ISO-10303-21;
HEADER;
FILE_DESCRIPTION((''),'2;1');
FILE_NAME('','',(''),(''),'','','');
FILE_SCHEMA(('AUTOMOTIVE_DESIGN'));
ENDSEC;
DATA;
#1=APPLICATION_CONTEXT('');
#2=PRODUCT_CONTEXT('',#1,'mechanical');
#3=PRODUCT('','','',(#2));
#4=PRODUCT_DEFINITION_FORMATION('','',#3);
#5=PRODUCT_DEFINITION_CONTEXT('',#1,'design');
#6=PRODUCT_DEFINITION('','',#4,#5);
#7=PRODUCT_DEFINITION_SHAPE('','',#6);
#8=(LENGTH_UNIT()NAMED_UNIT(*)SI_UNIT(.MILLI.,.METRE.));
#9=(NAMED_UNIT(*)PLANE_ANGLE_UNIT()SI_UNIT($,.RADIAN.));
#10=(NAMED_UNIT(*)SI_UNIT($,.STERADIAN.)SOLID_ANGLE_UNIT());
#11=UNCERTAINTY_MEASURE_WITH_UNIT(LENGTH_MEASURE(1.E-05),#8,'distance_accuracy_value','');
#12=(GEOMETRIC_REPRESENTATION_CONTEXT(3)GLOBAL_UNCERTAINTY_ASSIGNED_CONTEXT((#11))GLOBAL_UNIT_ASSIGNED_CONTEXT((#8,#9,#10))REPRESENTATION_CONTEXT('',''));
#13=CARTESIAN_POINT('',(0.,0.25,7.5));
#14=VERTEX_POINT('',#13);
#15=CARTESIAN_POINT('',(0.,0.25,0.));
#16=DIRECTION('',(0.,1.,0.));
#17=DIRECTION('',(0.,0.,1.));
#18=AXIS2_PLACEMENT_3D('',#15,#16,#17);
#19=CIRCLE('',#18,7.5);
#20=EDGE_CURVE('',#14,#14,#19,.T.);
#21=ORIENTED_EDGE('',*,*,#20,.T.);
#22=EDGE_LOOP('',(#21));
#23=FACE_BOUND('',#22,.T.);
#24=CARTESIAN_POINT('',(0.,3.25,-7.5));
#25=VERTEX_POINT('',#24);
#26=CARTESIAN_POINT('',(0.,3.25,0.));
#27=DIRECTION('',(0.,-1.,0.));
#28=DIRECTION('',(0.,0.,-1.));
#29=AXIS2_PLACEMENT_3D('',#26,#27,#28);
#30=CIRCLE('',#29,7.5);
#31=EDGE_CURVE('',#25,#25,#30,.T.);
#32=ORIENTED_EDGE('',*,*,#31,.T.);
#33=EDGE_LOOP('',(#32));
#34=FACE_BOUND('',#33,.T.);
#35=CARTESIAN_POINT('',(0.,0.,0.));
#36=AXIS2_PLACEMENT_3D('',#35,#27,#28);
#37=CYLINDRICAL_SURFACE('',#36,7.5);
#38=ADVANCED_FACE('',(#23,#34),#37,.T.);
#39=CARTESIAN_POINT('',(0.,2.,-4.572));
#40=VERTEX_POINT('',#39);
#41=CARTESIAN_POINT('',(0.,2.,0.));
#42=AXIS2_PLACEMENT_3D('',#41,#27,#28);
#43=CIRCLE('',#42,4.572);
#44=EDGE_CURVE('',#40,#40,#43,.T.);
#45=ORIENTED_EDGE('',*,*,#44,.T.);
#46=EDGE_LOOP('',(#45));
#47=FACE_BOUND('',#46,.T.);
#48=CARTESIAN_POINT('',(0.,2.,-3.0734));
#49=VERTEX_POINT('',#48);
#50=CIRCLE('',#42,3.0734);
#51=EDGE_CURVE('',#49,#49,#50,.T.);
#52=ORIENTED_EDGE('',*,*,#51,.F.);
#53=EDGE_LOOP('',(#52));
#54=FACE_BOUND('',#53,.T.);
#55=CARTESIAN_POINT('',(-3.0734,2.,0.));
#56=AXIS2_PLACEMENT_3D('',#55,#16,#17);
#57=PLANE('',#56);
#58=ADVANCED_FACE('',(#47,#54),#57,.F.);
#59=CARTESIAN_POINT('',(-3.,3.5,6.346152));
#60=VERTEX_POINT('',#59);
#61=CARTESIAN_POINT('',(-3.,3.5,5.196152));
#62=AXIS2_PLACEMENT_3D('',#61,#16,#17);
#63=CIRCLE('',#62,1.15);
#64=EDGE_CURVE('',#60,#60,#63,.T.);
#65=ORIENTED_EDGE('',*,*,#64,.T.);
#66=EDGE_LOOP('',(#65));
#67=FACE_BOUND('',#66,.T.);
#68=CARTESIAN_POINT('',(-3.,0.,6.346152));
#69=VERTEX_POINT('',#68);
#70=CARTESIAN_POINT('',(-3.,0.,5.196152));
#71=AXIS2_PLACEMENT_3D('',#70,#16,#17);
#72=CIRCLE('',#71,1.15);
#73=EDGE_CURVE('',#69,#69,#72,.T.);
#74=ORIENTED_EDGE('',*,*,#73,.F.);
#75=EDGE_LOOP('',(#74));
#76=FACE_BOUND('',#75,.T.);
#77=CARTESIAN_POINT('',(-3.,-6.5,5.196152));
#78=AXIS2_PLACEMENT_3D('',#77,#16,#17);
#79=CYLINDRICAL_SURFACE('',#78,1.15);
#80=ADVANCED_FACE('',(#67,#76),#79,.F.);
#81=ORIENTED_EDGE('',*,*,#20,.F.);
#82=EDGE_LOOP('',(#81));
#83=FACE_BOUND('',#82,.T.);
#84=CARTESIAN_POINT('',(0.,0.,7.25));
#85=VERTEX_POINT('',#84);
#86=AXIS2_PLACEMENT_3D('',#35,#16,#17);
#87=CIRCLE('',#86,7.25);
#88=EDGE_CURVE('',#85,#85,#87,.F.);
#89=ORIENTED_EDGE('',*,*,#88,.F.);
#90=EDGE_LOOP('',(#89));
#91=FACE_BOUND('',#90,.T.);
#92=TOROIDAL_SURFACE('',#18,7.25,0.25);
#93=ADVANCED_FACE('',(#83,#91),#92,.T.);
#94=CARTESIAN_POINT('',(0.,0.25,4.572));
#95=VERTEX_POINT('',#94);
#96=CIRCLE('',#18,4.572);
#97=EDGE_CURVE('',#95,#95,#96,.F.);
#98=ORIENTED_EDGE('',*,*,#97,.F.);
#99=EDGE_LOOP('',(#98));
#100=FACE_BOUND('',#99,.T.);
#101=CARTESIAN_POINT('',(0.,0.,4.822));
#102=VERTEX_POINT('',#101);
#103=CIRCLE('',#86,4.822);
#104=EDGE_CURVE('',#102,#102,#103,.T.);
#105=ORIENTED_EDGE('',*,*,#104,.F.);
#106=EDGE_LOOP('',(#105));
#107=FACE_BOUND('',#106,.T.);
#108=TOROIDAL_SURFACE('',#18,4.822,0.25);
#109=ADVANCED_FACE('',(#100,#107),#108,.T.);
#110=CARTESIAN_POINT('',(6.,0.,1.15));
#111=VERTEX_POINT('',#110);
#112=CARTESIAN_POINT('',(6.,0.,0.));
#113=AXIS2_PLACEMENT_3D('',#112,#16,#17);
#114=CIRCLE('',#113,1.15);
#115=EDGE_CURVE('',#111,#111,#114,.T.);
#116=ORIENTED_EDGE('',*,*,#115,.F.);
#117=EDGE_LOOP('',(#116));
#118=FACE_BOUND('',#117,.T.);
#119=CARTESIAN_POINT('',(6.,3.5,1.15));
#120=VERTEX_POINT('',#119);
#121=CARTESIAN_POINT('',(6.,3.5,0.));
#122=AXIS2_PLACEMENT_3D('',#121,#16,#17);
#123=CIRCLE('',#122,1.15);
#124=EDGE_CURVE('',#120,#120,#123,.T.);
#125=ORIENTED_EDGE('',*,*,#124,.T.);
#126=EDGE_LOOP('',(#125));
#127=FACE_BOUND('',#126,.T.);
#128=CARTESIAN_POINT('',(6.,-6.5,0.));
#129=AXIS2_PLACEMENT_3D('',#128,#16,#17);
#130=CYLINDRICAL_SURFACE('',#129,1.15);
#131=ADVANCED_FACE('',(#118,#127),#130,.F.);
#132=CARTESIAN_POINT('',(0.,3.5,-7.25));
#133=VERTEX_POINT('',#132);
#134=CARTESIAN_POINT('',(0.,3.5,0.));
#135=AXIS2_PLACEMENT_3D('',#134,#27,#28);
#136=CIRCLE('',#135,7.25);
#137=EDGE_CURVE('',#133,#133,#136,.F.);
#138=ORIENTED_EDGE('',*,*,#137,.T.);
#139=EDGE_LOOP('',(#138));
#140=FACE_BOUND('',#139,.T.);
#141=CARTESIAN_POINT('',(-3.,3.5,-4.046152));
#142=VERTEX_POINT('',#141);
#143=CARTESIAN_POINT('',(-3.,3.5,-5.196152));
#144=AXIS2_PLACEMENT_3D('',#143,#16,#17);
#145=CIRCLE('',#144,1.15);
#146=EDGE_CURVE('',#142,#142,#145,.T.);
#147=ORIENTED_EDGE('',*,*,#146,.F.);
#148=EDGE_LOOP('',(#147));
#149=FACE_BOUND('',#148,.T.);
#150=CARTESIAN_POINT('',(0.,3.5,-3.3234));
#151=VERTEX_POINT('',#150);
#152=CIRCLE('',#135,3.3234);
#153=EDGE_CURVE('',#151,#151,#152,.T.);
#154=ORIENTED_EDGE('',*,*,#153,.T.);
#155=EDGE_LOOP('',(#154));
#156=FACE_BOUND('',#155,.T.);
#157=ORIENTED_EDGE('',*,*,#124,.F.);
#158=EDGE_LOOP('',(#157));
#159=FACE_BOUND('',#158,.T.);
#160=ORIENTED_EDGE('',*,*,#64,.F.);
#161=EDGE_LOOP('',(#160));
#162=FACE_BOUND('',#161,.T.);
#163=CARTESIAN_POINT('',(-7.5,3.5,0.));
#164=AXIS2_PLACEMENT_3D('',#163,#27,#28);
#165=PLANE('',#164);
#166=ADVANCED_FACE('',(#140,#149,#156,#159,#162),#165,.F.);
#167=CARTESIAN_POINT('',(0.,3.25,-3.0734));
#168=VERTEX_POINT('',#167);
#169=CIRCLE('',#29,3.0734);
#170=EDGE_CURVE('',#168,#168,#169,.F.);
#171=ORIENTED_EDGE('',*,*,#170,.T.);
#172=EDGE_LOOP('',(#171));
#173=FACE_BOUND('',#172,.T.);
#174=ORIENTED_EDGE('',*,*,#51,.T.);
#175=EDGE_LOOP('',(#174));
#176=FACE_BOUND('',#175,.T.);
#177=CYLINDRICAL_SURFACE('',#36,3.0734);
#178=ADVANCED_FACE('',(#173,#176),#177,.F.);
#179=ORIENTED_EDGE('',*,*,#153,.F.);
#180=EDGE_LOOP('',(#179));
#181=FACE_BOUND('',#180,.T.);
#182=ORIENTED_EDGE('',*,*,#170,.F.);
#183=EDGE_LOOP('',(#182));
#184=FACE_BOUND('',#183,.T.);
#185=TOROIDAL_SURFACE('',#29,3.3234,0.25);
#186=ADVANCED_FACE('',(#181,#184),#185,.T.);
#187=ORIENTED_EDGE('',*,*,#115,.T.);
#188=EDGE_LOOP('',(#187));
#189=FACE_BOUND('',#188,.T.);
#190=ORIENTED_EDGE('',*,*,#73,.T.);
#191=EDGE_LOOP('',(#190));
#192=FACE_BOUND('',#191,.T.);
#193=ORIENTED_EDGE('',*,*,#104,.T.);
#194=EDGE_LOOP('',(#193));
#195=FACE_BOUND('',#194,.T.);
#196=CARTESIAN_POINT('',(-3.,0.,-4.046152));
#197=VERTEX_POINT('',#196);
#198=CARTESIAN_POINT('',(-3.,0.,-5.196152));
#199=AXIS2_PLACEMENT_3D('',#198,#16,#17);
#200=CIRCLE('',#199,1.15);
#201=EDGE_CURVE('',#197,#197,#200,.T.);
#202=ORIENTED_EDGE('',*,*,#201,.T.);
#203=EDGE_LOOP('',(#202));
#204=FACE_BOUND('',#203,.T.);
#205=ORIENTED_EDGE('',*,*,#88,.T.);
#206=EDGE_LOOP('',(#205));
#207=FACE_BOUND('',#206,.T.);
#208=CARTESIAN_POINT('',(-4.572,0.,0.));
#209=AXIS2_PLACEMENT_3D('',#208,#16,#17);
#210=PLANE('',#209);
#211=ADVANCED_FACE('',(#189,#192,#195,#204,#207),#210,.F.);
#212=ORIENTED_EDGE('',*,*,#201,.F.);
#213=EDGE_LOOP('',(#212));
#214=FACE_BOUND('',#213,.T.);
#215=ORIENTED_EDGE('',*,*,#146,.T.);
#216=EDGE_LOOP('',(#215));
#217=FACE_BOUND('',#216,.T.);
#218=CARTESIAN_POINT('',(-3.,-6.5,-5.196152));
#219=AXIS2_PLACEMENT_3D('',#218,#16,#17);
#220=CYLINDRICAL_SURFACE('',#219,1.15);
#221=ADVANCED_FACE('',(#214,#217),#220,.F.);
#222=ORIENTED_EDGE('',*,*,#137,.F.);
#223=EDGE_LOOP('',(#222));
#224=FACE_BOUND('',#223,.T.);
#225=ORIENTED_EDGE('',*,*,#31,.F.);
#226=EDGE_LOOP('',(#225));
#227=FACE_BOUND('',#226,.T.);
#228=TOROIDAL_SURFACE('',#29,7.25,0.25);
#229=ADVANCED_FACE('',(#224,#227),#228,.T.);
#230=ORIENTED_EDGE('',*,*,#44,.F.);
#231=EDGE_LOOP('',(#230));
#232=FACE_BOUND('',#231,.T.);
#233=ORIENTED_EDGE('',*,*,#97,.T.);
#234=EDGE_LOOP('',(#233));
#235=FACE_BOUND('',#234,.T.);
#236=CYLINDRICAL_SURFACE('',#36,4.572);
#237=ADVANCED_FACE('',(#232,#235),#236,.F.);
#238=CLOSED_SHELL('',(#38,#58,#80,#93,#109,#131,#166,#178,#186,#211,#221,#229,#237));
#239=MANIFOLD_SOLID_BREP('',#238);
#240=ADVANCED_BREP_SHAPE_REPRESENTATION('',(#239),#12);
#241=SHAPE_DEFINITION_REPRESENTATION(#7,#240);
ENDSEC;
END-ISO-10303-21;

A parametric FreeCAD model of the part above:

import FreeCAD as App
import Part
import Sketcher

V = App.Vector


def edges_at(feature, points):
    """Names of the edges that pass closest to the given points."""
    edges = feature.Shape.Edges
    near = lambda p: min(range(len(edges)), key=lambda i: edges[i].distToShape(Part.Vertex(*p))[0])
    return sorted({f"Edge{near(p) + 1}" for p in points})

doc = App.newDocument("Part")
body = doc.addObject("PartDesign::Body", "Body")

# Sketch on XY plane
sketch1 = body.newObject("Sketcher::SketchObject", "Sketch")
sketch1.AttachmentSupport = (doc.getObject("XY_Plane"), [""])
sketch1.MapMode = "FlatFace"
sketch1.addGeometry([
    Part.LineSegment(V(-7.5, 0, 0), V(-4.6, 0, 0)),  # 0
    Part.LineSegment(V(-4.6, 0, 0), V(-4.6, 2, 0)),  # 1
    Part.LineSegment(V(-4.6, 2, 0), V(-3.1, 2, 0)),  # 2
    Part.LineSegment(V(-3.1, 2, 0), V(-3.1, 3.5, 0)),  # 3
    Part.LineSegment(V(-3.1, 3.5, 0), V(-7.5, 3.5, 0)),  # 4
    Part.LineSegment(V(-7.5, 3.5, 0), V(-7.5, 0, 0)),  # 5
], False)
sketch1.addConstraint([
    Sketcher.Constraint("Coincident", 0, 2, 1, 1),
    Sketcher.Constraint("Coincident", 1, 2, 2, 1),
    Sketcher.Constraint("Coincident", 2, 2, 3, 1),
    Sketcher.Constraint("Coincident", 3, 2, 4, 1),
    Sketcher.Constraint("Coincident", 4, 2, 5, 1),
    Sketcher.Constraint("Coincident", 5, 2, 0, 1),
    Sketcher.Constraint("Horizontal", 0),
    Sketcher.Constraint("Vertical", 1),
    Sketcher.Constraint("Horizontal", 2),
    Sketcher.Constraint("Vertical", 3),
    Sketcher.Constraint("Horizontal", 4),
    Sketcher.Constraint("Vertical", 5),
    Sketcher.Constraint("PointOnObject", 0, 2, -1),
    Sketcher.Constraint("DistanceY", 1, 1, 1, 2, 2.0),
    Sketcher.Constraint("DistanceY", 3, 1, 3, 2, 1.5),
    Sketcher.Constraint("DistanceX", 4, 2, -1, 1, 7.5),
    Sketcher.Constraint("DistanceX", 0, 1, 0, 2, 2.928),
    Sketcher.Constraint("DistanceX", 2, 1, 2, 2, 1.4986),
])
revolution = body.newObject("PartDesign::Revolution", "Revolution")
revolution.Profile = sketch1
revolution.ReferenceAxis = (sketch1, ["V_Axis"])
revolution.Angle = 360

# Sketch on XZ plane
sketch2 = body.newObject("Sketcher::SketchObject", "Sketch001")
sketch2.AttachmentSupport = (doc.getObject("XZ_Plane"), [""])
sketch2.MapMode = "FlatFace"
sketch2.AttachmentOffset = App.Placement(V(0, 0, -3.5), App.Rotation())
sketch2.addGeometry([
    Part.Circle(V(6, 0, 0), V(0, 0, 1), 1.1),
    Part.Circle(V(-3, 5.2, 0), V(0, 0, 1), 1.1),
    Part.Circle(V(-3, -5.2, 0), V(0, 0, 1), 1.1),
], False)
sketch2.addConstraint([
    Sketcher.Constraint("Equal", 0, 1),
    Sketcher.Constraint("Equal", 1, 2),
    Sketcher.Constraint("Symmetric", 1, 3, 2, 3, -1),
    Sketcher.Constraint("PointOnObject", 0, 3, -1),
    Sketcher.Constraint("Diameter", 0, 2.3),
    Sketcher.Constraint("DistanceX", -1, 1, 0, 3, 6.0),
    Sketcher.Constraint("DistanceX", 1, 3, -1, 1, 3.0),
    Sketcher.Constraint("DistanceY", -1, 1, 1, 3, 5.196152),
])
pocket1 = body.newObject("PartDesign::Pocket", "Pocket")
pocket1.Profile = sketch2
pocket1.Length = 10
pocket1.Reversed = True
doc.recompute()

fillet = body.newObject("PartDesign::Fillet", "Fillet")
fillet.Base = (pocket1, edges_at(pocket1, [(3.073, 3.5, 0)]))
fillet.Radius = 0.25
doc.recompute()

fillet2 = body.newObject("PartDesign::Fillet", "Fillet001")
fillet2.Base = (fillet, edges_at(fillet, [(7.5, 3.5, 0)]))
fillet2.Radius = 0.25
doc.recompute()

fillet3 = body.newObject("PartDesign::Fillet", "Fillet002")
fillet3.Base = (fillet2, edges_at(fillet2, [(7.5, 0, 0), (4.572, 0, 0)]))
fillet3.Radius = 0.25

doc.recompute()
